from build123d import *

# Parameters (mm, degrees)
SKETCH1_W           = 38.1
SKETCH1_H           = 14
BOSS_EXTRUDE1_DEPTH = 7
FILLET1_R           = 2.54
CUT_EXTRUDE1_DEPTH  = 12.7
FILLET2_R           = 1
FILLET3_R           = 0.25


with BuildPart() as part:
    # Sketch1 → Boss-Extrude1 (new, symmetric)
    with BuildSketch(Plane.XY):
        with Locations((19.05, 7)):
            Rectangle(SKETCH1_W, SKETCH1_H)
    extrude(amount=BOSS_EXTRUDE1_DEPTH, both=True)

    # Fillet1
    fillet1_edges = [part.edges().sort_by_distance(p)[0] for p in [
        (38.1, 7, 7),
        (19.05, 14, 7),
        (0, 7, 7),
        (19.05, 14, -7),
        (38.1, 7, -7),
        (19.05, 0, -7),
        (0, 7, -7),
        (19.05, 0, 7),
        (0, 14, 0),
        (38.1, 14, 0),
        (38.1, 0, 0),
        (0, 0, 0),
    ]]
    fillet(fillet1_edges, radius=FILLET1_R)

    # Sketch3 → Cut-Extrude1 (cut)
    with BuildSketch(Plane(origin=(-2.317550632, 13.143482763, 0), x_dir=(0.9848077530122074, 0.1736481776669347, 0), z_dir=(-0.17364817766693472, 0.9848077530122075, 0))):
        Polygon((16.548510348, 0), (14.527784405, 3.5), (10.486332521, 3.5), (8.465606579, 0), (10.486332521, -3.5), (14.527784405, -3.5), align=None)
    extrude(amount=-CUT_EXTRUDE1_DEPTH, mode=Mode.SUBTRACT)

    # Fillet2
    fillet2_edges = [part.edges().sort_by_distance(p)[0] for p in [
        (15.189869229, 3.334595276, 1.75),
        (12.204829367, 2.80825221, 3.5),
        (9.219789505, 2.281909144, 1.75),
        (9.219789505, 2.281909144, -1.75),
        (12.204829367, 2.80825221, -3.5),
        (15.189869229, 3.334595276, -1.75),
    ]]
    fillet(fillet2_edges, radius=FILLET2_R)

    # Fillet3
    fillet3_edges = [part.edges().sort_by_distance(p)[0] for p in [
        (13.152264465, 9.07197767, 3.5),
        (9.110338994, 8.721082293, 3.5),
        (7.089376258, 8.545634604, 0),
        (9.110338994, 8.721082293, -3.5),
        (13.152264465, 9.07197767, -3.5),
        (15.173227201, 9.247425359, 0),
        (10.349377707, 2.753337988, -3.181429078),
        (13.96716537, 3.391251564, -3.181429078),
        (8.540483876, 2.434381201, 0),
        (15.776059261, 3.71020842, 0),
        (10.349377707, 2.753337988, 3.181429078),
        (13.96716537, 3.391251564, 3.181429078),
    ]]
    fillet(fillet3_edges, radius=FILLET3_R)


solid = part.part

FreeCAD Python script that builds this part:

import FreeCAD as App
import Part
import Sketcher
Q = App.Units.Quantity


def edges_at(feature, points):
    """Names of the edges that pass closest to the given points."""
    edges = feature.Shape.Edges
    near = lambda p: min(range(len(edges)), key=lambda i: edges[i].distToShape(Part.Vertex(*p))[0])
    return sorted({f"Edge{near(p) + 1}" for p in points})


def add_polygon(sketch, points):
    """Adds a closed chain of lines whose ends are joined by coincident constraints."""
    first, n = sketch.GeometryCount, len(points)
    for a, b in zip(points, points[1:] + points[:1]):
        sketch.addGeometry(Part.LineSegment(App.Vector(*a, 0), App.Vector(*b, 0)), False)
    for i in range(n):
        sketch.addConstraint(Sketcher.Constraint("Coincident", first + i, 2, first + (i + 1) % n, 1))

doc = App.newDocument("Part")
body = doc.addObject("PartDesign::Body", "Body")

sketch1 = body.newObject("Sketcher::SketchObject", "Sketch")
sketch1.AttachmentSupport = (doc.getObject("XY_Plane"), [""])
sketch1.MapMode = "FlatFace"
add_polygon(sketch1, [(0, 14), (0, 0), (38, 0), (38, 14)])
sketch1.addConstraint([
    Sketcher.Constraint("Vertical", 0),
    Sketcher.Constraint("Horizontal", 1),
    Sketcher.Constraint("Vertical", 2),
    Sketcher.Constraint("Horizontal", 3),
    Sketcher.Constraint("Coincident", 0, 2, -1, 1),
    Sketcher.Constraint("DistanceY", 0, 2, 0, 1, Q("14 mm")),
    Sketcher.Constraint("DistanceX", 1, 1, 1, 2, Q("38.1 mm")),
])
pad1 = body.newObject("PartDesign::Pad", "Pad")
pad1.Profile = sketch1
pad1.Length = 14
pad1.Midplane = True
doc.recompute()

fillet = body.newObject("PartDesign::Fillet", "Fillet")
fillet.Base = (pad1, ["Edge1"])
fillet.UseAllEdges = True
fillet.Radius = 2.54

sketch2 = body.newObject("Sketcher::SketchObject", "Sketch001")
sketch2.Placement = App.Placement(App.Vector(-2.317551, 13.143483, 0), App.Rotation(App.Vector(0.984807753, 0.173648178, 0), App.Vector(0, 0, -1), App.Vector(-0.173648178, 0.984807753, 0), "ZXY"))
add_polygon(sketch2, [(16.5, 0), (14.5, 3.5), (10.5, 3.5), (8.5, 0), (10.5, -3.5), (14.5, -3.5)])
sketch2.addConstraint([
    Sketcher.Constraint("Horizontal", 1),
    Sketcher.Constraint("Horizontal", 4),
    Sketcher.Constraint("Symmetric", 1, 2, 3, 2, -1),
    Sketcher.Constraint("PointOnObject", 2, 2, -1),
    Sketcher.Constraint("PointOnObject", 5, 2, -1),
    Sketcher.Constraint("Parallel", 0, 3),
    Sketcher.Constraint("Parallel", 2, 5),
    Sketcher.Constraint("Angle", 0, Q("120 deg")),
    Sketcher.Constraint("DistanceY", 3, 2, 1, 2, Q("7 mm")),
    Sketcher.Constraint("DistanceX", 1, 2, 1, 1, Q("4.041452 mm")),
    Sketcher.Constraint("DistanceX", -1, 1, 5, 2, Q("16.54851 mm")),
])
pocket1 = body.newObject("PartDesign::Pocket", "Pocket")
pocket1.Profile = sketch2
pocket1.Length = 12.7
doc.recompute()

fillet2 = body.newObject("PartDesign::Fillet", "Fillet001")
fillet2.Base = (pocket1, edges_at(pocket1, [
    (15.19, 3.335, 1.75),
    (12.205, 2.808, 3.5),
    (9.22, 2.282, 1.75),
    (9.22, 2.282, -1.75),
    (12.205, 2.808, -3.5),
    (15.19, 3.335, -1.75),
]))
fillet2.Radius = 1
doc.recompute()

fillet3 = body.newObject("PartDesign::Fillet", "Fillet002")
fillet3.Base = (fillet2, edges_at(fillet2, [
    (13.152, 9.072, 3.5),
    (9.11, 8.721, 3.5),
    (7.089, 8.546, 0),
    (9.11, 8.721, -3.5),
    (13.152, 9.072, -3.5),
    (15.173, 9.247, 0),
    (10.349, 2.753, -3.181),
    (13.967, 3.391, -3.181),
    (8.54, 2.434, 0),
    (15.776, 3.71, 0),
    (10.349, 2.753, 3.181),
    (13.967, 3.391, 3.181),
]))
fillet3.Radius = 0.25

doc.recompute()
